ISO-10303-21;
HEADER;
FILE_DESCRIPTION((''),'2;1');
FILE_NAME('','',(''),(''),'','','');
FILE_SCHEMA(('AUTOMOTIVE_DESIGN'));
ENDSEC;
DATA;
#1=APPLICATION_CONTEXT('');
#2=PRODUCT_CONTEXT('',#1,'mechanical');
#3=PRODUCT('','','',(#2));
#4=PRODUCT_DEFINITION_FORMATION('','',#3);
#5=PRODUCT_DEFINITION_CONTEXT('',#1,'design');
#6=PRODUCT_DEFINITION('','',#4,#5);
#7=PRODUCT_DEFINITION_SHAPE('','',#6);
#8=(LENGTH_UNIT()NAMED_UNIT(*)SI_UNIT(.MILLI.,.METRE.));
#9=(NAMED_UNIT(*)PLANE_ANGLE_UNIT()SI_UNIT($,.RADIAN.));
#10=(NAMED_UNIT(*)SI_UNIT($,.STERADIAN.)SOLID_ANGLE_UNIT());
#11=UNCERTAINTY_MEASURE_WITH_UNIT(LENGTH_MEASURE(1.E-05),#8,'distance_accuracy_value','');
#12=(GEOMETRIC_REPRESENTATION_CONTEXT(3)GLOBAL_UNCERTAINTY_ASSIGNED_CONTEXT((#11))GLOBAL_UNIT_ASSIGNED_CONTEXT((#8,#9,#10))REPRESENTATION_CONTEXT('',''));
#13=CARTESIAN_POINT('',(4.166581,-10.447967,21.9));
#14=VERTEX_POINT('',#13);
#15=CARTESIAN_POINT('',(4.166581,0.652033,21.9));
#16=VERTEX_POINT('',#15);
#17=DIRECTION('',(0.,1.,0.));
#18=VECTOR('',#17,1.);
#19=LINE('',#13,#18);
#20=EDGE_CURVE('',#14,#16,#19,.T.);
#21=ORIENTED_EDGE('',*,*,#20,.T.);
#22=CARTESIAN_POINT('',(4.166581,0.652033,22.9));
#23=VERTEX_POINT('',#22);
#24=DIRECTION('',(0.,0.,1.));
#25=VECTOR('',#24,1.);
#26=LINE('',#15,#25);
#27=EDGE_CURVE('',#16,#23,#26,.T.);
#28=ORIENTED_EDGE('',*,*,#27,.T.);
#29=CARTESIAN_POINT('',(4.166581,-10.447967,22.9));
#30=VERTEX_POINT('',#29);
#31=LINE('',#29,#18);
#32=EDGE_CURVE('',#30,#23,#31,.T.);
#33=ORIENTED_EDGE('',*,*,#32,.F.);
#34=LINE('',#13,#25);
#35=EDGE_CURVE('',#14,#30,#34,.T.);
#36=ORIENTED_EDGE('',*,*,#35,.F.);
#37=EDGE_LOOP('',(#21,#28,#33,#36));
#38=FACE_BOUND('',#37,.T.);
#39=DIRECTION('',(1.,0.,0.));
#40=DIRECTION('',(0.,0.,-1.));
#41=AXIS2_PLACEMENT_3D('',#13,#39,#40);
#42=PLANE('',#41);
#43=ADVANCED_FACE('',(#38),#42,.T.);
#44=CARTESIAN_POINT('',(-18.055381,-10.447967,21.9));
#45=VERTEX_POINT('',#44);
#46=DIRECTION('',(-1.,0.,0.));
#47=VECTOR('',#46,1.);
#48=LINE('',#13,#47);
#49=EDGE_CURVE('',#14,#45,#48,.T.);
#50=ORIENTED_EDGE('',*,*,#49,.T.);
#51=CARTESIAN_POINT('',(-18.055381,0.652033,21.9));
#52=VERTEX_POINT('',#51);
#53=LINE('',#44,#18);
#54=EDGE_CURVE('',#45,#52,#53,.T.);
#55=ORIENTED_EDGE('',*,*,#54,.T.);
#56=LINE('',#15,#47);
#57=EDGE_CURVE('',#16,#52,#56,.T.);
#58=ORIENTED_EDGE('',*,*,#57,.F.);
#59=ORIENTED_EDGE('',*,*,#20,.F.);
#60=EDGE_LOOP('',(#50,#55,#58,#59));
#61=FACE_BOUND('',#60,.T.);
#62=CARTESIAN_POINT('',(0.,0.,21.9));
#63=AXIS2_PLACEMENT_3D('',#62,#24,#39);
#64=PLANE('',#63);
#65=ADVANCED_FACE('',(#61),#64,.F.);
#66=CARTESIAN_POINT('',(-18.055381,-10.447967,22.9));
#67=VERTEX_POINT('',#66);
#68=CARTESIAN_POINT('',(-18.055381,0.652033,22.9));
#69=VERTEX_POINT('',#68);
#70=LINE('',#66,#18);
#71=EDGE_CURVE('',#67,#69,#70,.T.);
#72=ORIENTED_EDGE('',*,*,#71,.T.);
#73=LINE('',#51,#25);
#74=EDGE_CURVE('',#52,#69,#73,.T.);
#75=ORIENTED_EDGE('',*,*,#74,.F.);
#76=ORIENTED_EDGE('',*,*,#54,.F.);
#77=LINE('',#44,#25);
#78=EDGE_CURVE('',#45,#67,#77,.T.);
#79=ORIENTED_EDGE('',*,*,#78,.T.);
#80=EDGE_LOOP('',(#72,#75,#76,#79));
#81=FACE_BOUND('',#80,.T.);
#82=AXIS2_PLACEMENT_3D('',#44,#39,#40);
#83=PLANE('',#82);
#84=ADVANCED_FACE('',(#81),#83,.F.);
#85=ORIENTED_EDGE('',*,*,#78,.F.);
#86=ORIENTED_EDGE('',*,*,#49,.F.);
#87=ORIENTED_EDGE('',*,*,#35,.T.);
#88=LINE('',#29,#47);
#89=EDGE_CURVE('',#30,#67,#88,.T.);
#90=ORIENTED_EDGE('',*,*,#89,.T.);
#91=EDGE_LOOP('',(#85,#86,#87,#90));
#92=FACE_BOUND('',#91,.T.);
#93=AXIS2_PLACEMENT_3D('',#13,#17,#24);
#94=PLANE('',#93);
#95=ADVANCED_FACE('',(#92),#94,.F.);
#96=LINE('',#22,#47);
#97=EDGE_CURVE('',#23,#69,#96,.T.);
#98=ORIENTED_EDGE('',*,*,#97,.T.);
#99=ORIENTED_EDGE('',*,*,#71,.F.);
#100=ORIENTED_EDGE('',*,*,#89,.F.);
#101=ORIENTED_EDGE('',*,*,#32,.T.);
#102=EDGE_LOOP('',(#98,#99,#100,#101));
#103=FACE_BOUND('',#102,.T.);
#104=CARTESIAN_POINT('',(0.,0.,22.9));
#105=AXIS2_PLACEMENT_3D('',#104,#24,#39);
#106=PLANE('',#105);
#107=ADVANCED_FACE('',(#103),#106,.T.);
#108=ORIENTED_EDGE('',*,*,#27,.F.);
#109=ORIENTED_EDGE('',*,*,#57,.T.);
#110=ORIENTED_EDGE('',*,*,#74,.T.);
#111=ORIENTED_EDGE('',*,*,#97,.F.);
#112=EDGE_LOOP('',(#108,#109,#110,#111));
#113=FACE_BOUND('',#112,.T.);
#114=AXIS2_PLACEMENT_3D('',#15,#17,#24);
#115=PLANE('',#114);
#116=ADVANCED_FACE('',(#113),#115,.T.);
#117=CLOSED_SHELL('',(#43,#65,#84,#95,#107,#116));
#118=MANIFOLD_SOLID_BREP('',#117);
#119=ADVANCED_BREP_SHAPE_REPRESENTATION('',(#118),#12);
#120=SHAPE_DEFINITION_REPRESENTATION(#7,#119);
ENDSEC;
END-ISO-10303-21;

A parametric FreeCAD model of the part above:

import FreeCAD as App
import Part
import Sketcher
from FreeCAD import Vector


def add_polygon(sketch, points):
    """Adds a closed chain of lines whose ends are joined by coincident constraints."""
    first, n = sketch.GeometryCount, len(points)
    for a, b in zip(points, points[1:] + points[:1]):
        sketch.addGeometry(Part.LineSegment(App.Vector(*a, 0), App.Vector(*b, 0)), False)
    for i in range(n):
        sketch.addConstraint(Sketcher.Constraint("Coincident", first + i, 2, first + (i + 1) % n, 1))

doc = App.newDocument("Part")
body = doc.addObject("PartDesign::Body", "Body")

sketch1 = body.newObject("Sketcher::SketchObject", "Sketch")
sketch1.AttachmentSupport = (doc.getObject("XY_Plane"), [""])
sketch1.MapMode = "FlatFace"
sketch1.AttachmentOffset = App.Placement(Vector(0, 0, 22.9), App.Rotation())
add_polygon(sketch1, [(-18.055381, 0.652033), (-18.055381, -10.447967), (4.166581, -10.447967), (4.166581, 0.652033)])
sketch1.addConstraint([
    Sketcher.Constraint("Vertical", 0),
    Sketcher.Constraint("Horizontal", 1),
    Sketcher.Constraint("Vertical", 2),
    Sketcher.Constraint("Horizontal", 3),
    Sketcher.Constraint("DistanceY", 0, 2, 0, 1, 11.1),
    Sketcher.Constraint("DistanceX", 1, 1, 1, 2, 22.221962),
    Sketcher.Constraint("DistanceX", 0, 2, -1, 1, 18.055381),
    Sketcher.Constraint("DistanceY", 0, 2, -1, 1, 10.447967),
])
pad1 = body.newObject("PartDesign::Pad", "Pad")
pad1.Profile = sketch1
pad1.Length = 1
pad1.Reversed = True

doc.recompute()
